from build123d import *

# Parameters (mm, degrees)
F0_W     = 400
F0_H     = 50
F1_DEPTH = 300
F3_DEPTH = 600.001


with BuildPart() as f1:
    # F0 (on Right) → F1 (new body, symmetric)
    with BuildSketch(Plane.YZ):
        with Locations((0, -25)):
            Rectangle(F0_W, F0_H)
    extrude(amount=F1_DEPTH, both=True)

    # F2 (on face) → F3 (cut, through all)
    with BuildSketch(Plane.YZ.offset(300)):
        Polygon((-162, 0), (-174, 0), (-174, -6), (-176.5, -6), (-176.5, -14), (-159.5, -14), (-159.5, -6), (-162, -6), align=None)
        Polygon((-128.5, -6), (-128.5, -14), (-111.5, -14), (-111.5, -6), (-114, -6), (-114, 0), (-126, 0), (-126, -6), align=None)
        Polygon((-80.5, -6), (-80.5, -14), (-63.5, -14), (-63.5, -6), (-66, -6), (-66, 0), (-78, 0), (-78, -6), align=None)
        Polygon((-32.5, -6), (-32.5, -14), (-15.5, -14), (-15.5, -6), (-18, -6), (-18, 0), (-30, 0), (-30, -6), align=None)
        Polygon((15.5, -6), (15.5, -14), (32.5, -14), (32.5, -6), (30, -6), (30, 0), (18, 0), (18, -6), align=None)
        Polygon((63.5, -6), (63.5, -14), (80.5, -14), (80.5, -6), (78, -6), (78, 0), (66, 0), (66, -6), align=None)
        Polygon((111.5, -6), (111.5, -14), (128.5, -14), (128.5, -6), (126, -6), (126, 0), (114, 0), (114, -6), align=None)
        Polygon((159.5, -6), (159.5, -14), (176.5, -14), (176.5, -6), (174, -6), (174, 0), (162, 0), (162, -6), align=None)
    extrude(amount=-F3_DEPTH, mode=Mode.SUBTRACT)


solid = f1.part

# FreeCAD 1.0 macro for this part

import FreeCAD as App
import Part
import Sketcher

V = App.Vector

doc = App.newDocument("Part")
params = doc.addObject("Spreadsheet::Sheet", "Params")
for row, (alias, value) in enumerate([
    ("sketch1_width", "400 mm"),
    ("sketch1_height", "50 mm"),
    ("pad1_length", "600 mm"),
    ("sketch2_width", "12 mm"),
    ("sketch2_width2", "17 mm"),
    ("sketch2_height", "6 mm"),
    ("sketch2_height2", "8 mm"),
], start=1):
    params.set(f"A{row}", alias)
    params.set(f"B{row}", "=" + value)
    params.setAlias(f"B{row}", alias)

body = doc.addObject("PartDesign::Body", "Body")

# Sketch on YZ plane
sketch1 = doc.addObject("Sketcher::SketchObject", "Sketch")
body.addObject(sketch1)
sketch1.AttachmentSupport = (doc.YZ_Plane, [""])
sketch1.MapMode = "FlatFace"
sketch1.addGeometry([
    Part.LineSegment(V(-200, 0, 0), V(-200, -50, 0)),
    Part.LineSegment(V(-200, -50, 0), V(200, -50, 0)),
    Part.LineSegment(V(200, -50, 0), V(200, 0, 0)),
    Part.LineSegment(V(200, 0, 0), V(-200, 0, 0)),
], False)
sketch1.addConstraint([
    Sketcher.Constraint("Coincident", 0, 2, 1, 1),
    Sketcher.Constraint("Coincident", 1, 2, 2, 1),
    Sketcher.Constraint("Coincident", 2, 2, 3, 1),
    Sketcher.Constraint("Coincident", 3, 2, 0, 1),
    Sketcher.Constraint("Vertical", 0),
    Sketcher.Constraint("Horizontal", 1),
    Sketcher.Constraint("Vertical", 2),
    Sketcher.Constraint("Horizontal", 3),
    Sketcher.Constraint("Symmetric", 2, 2, 3, 2, -1, 1),
    Sketcher.Constraint("DistanceX", 1, 1, 1, 2, 400.0),
    Sketcher.Constraint("DistanceY", 0, 2, 0, 1, 50.0),
])
sketch1.setExpression("Constraints[9]", "Params.sketch1_width")
sketch1.setExpression("Constraints[10]", "Params.sketch1_height")
pad1 = doc.addObject("PartDesign::Pad", "Pad")
body.addObject(pad1)
pad1.Profile = sketch1
pad1.setExpression("Length", "Params.pad1_length")
pad1.Midplane = True

# Sketch on YZ plane
sketch2 = doc.addObject("Sketcher::SketchObject", "Sketch001")
body.addObject(sketch2)
sketch2.AttachmentSupport = (doc.YZ_Plane, [""])
sketch2.MapMode = "FlatFace"
sketch2.AttachmentOffset = App.Placement(V(0, 0, 300), App.Rotation())
sketch2.addGeometry([
    Part.LineSegment(V(-162, 0, 0), V(-174, 0, 0)),  # 0
    Part.LineSegment(V(-174, 0, 0), V(-174, -6, 0)),  # 1
    Part.LineSegment(V(-174, -6, 0), V(-176.5, -6, 0)),  # 2
    Part.LineSegment(V(-176.5, -6, 0), V(-176.5, -14, 0)),  # 3
    Part.LineSegment(V(-176.5, -14, 0), V(-159.5, -14, 0)),  # 4
    Part.LineSegment(V(-159.5, -14, 0), V(-159.5, -6, 0)),  # 5
    Part.LineSegment(V(-159.5, -6, 0), V(-162, -6, 0)),  # 6
    Part.LineSegment(V(-162, -6, 0), V(-162, 0, 0)),  # 7
    Part.LineSegment(V(-128.5, -6, 0), V(-128.5, -14, 0)),  # 8
    Part.LineSegment(V(-128.5, -14, 0), V(-111.5, -14, 0)),  # 9
    Part.LineSegment(V(-111.5, -14, 0), V(-111.5, -6, 0)),  # 10
    Part.LineSegment(V(-111.5, -6, 0), V(-114, -6, 0)),  # 11
    Part.LineSegment(V(-114, -6, 0), V(-114, 0, 0)),  # 12
    Part.LineSegment(V(-114, 0, 0), V(-126, 0, 0)),  # 13
    Part.LineSegment(V(-126, 0, 0), V(-126, -6, 0)),  # 14
    Part.LineSegment(V(-126, -6, 0), V(-128.5, -6, 0)),  # 15
    Part.LineSegment(V(-80.5, -6, 0), V(-80.5, -14, 0)),  # 16
    Part.LineSegment(V(-80.5, -14, 0), V(-63.5, -14, 0)),  # 17
    Part.LineSegment(V(-63.5, -14, 0), V(-63.5, -6, 0)),  # 18
    Part.LineSegment(V(-63.5, -6, 0), V(-66, -6, 0)),  # 19
    Part.LineSegment(V(-66, -6, 0), V(-66, 0, 0)),  # 20
    Part.LineSegment(V(-66, 0, 0), V(-78, 0, 0)),  # 21
    Part.LineSegment(V(-78, 0, 0), V(-78, -6, 0)),  # 22
    Part.LineSegment(V(-78, -6, 0), V(-80.5, -6, 0)),  # 23
    Part.LineSegment(V(-32.5, -6, 0), V(-32.5, -14, 0)),  # 24
    Part.LineSegment(V(-32.5, -14, 0), V(-15.5, -14, 0)),  # 25
    Part.LineSegment(V(-15.5, -14, 0), V(-15.5, -6, 0)),  # 26
    Part.LineSegment(V(-15.5, -6, 0), V(-18, -6, 0)),  # 27
    Part.LineSegment(V(-18, -6, 0), V(-18, 0, 0)),  # 28
    Part.LineSegment(V(-18, 0, 0), V(-30, 0, 0)),  # 29
    Part.LineSegment(V(-30, 0, 0), V(-30, -6, 0)),  # 30
    Part.LineSegment(V(-30, -6, 0), V(-32.5, -6, 0)),  # 31
    Part.LineSegment(V(15.5, -6, 0), V(15.5, -14, 0)),  # 32
    Part.LineSegment(V(15.5, -14, 0), V(32.5, -14, 0)),  # 33
    Part.LineSegment(V(32.5, -14, 0), V(32.5, -6, 0)),  # 34
    Part.LineSegment(V(32.5, -6, 0), V(30, -6, 0)),  # 35
    Part.LineSegment(V(30, -6, 0), V(30, 0, 0)),  # 36
    Part.LineSegment(V(30, 0, 0), V(18, 0, 0)),  # 37
    Part.LineSegment(V(18, 0, 0), V(18, -6, 0)),  # 38
    Part.LineSegment(V(18, -6, 0), V(15.5, -6, 0)),  # 39
    Part.LineSegment(V(63.5, -6, 0), V(63.5, -14, 0)),  # 40
    Part.LineSegment(V(63.5, -14, 0), V(80.5, -14, 0)),  # 41
    Part.LineSegment(V(80.5, -14, 0), V(80.5, -6, 0)),  # 42
    Part.LineSegment(V(80.5, -6, 0), V(78, -6, 0)),  # 43
    Part.LineSegment(V(78, -6, 0), V(78, 0, 0)),  # 44
    Part.LineSegment(V(78, 0, 0), V(66, 0, 0)),  # 45
    Part.LineSegment(V(66, 0, 0), V(66, -6, 0)),  # 46
    Part.LineSegment(V(66, -6, 0), V(63.5, -6, 0)),  # 47
    Part.LineSegment(V(111.5, -6, 0), V(111.5, -14, 0)),  # 48
    Part.LineSegment(V(111.5, -14, 0), V(128.5, -14, 0)),  # 49
    Part.LineSegment(V(128.5, -14, 0), V(128.5, -6, 0)),  # 50
    Part.LineSegment(V(128.5, -6, 0), V(126, -6, 0)),  # 51
    Part.LineSegment(V(126, -6, 0), V(126, 0, 0)),  # 52
    Part.LineSegment(V(126, 0, 0), V(114, 0, 0)),  # 53
    Part.LineSegment(V(114, 0, 0), V(114, -6, 0)),  # 54
    Part.LineSegment(V(114, -6, 0), V(111.5, -6, 0)),  # 55
    Part.LineSegment(V(159.5, -6, 0), V(159.5, -14, 0)),  # 56
    Part.LineSegment(V(159.5, -14, 0), V(176.5, -14, 0)),  # 57
    Part.LineSegment(V(176.5, -14, 0), V(176.5, -6, 0)),  # 58
    Part.LineSegment(V(176.5, -6, 0), V(174, -6, 0)),  # 59
    Part.LineSegment(V(174, -6, 0), V(174, 0, 0)),  # 60
    Part.LineSegment(V(174, 0, 0), V(162, 0, 0)),  # 61
    Part.LineSegment(V(162, 0, 0), V(162, -6, 0)),  # 62
    Part.LineSegment(V(162, -6, 0), V(159.5, -6, 0)),  # 63
], False)
sketch2.addConstraint([
    Sketcher.Constraint("Coincident", 0, 2, 1, 1),
    Sketcher.Constraint("Coincident", 1, 2, 2, 1),
    Sketcher.Constraint("Coincident", 2, 2, 3, 1),
    Sketcher.Constraint("Coincident", 3, 2, 4, 1),
    Sketcher.Constraint("Coincident", 4, 2, 5, 1),
    Sketcher.Constraint("Coincident", 5, 2, 6, 1),
    Sketcher.Constraint("Coincident", 6, 2, 7, 1),
    Sketcher.Constraint("Coincident", 7, 2, 0, 1),
    Sketcher.Constraint("Coincident", 8, 2, 9, 1),
    Sketcher.Constraint("Coincident", 9, 2, 10, 1),
    Sketcher.Constraint("Coincident", 10, 2, 11, 1),
    Sketcher.Constraint("Coincident", 11, 2, 12, 1),
    Sketcher.Constraint("Coincident", 12, 2, 13, 1),
    Sketcher.Constraint("Coincident", 13, 2, 14, 1),
    Sketcher.Constraint("Coincident", 14, 2, 15, 1),
    Sketcher.Constraint("Coincident", 15, 2, 8, 1),
    Sketcher.Constraint("Coincident", 16, 2, 17, 1),
    Sketcher.Constraint("Coincident", 17, 2, 18, 1),
    Sketcher.Constraint("Coincident", 18, 2, 19, 1),
    Sketcher.Constraint("Coincident", 19, 2, 20, 1),
    Sketcher.Constraint("Coincident", 20, 2, 21, 1),
    Sketcher.Constraint("Coincident", 21, 2, 22, 1),
    Sketcher.Constraint("Coincident", 22, 2, 23, 1),
    Sketcher.Constraint("Coincident", 23, 2, 16, 1),
    Sketcher.Constraint("Coincident", 24, 2, 25, 1),
    Sketcher.Constraint("Coincident", 25, 2, 26, 1),
    Sketcher.Constraint("Coincident", 26, 2, 27, 1),
    Sketcher.Constraint("Coincident", 27, 2, 28, 1),
    Sketcher.Constraint("Coincident", 28, 2, 29, 1),
    Sketcher.Constraint("Coincident", 29, 2, 30, 1),
    Sketcher.Constraint("Coincident", 30, 2, 31, 1),
    Sketcher.Constraint("Coincident", 31, 2, 24, 1),
    Sketcher.Constraint("Coincident", 32, 2, 33, 1),
    Sketcher.Constraint("Coincident", 33, 2, 34, 1),
    Sketcher.Constraint("Coincident", 34, 2, 35, 1),
    Sketcher.Constraint("Coincident", 35, 2, 36, 1),
    Sketcher.Constraint("Coincident", 36, 2, 37, 1),
    Sketcher.Constraint("Coincident", 37, 2, 38, 1),
    Sketcher.Constraint("Coincident", 38, 2, 39, 1),
    Sketcher.Constraint("Coincident", 39, 2, 32, 1),
    Sketcher.Constraint("Coincident", 40, 2, 41, 1),
    Sketcher.Constraint("Coincident", 41, 2, 42, 1),
    Sketcher.Constraint("Coincident", 42, 2, 43, 1),
    Sketcher.Constraint("Coincident", 43, 2, 44, 1),
    Sketcher.Constraint("Coincident", 44, 2, 45, 1),
    Sketcher.Constraint("Coincident", 45, 2, 46, 1),
    Sketcher.Constraint("Coincident", 46, 2, 47, 1),
    Sketcher.Constraint("Coincident", 47, 2, 40, 1),
    Sketcher.Constraint("Coincident", 48, 2, 49, 1),
    Sketcher.Constraint("Coincident", 49, 2, 50, 1),
    Sketcher.Constraint("Coincident", 50, 2, 51, 1),
    Sketcher.Constraint("Coincident", 51, 2, 52, 1),
    Sketcher.Constraint("Coincident", 52, 2, 53, 1),
    Sketcher.Constraint("Coincident", 53, 2, 54, 1),
    Sketcher.Constraint("Coincident", 54, 2, 55, 1),
    Sketcher.Constraint("Coincident", 55, 2, 48, 1),
    Sketcher.Constraint("Coincident", 56, 2, 57, 1),
    Sketcher.Constraint("Coincident", 57, 2, 58, 1),
    Sketcher.Constraint("Coincident", 58, 2, 59, 1),
    Sketcher.Constraint("Coincident", 59, 2, 60, 1),
    Sketcher.Constraint("Coincident", 60, 2, 61, 1),
    Sketcher.Constraint("Coincident", 61, 2, 62, 1),
    Sketcher.Constraint("Coincident", 62, 2, 63, 1),
    Sketcher.Constraint("Coincident", 63, 2, 56, 1),
    Sketcher.Constraint("Horizontal", 0),
    Sketcher.Constraint("Vertical", 1),
    Sketcher.Constraint("Horizontal", 2),
    Sketcher.Constraint("Vertical", 3),
    Sketcher.Constraint("Horizontal", 4),
    Sketcher.Constraint("Vertical", 5),
    Sketcher.Constraint("Horizontal", 6),
    Sketcher.Constraint("Vertical", 7),
    Sketcher.Constraint("Vertical", 8),
    Sketcher.Constraint("Horizontal", 9),
    Sketcher.Constraint("Vertical", 10),
    Sketcher.Constraint("Horizontal", 11),
    Sketcher.Constraint("Vertical", 12),
    Sketcher.Constraint("Horizontal", 13),
    Sketcher.Constraint("Vertical", 14),
    Sketcher.Constraint("Horizontal", 15),
    Sketcher.Constraint("Vertical", 16),
    Sketcher.Constraint("Horizontal", 17),
    Sketcher.Constraint("Vertical", 18),
    Sketcher.Constraint("Horizontal", 19),
    Sketcher.Constraint("Vertical", 20),
    Sketcher.Constraint("Horizontal", 21),
    Sketcher.Constraint("Vertical", 22),
    Sketcher.Constraint("Horizontal", 23),
    Sketcher.Constraint("Vertical", 24),
    Sketcher.Constraint("Horizontal", 25),
    Sketcher.Constraint("Vertical", 26),
    Sketcher.Constraint("Horizontal", 27),
    Sketcher.Constraint("Vertical", 28),
    Sketcher.Constraint("Horizontal", 29),
    Sketcher.Constraint("Vertical", 30),
    Sketcher.Constraint("Horizontal", 31),
    Sketcher.Constraint("Vertical", 32),
    Sketcher.Constraint("Horizontal", 33),
    Sketcher.Constraint("Vertical", 34),
    Sketcher.Constraint("Horizontal", 35),
    Sketcher.Constraint("Vertical", 36),
    Sketcher.Constraint("Horizontal", 37),
    Sketcher.Constraint("Vertical", 38),
    Sketcher.Constraint("Horizontal", 39),
    Sketcher.Constraint("Vertical", 40),
    Sketcher.Constraint("Horizontal", 41),
    Sketcher.Constraint("Vertical", 42),
    Sketcher.Constraint("Horizontal", 43),
    Sketcher.Constraint("Vertical", 44),
    Sketcher.Constraint("Horizontal", 45),
    Sketcher.Constraint("Vertical", 46),
    Sketcher.Constraint("Horizontal", 47),
    Sketcher.Constraint("Vertical", 48),
    Sketcher.Constraint("Horizontal", 49),
    Sketcher.Constraint("Vertical", 50),
    Sketcher.Constraint("Horizontal", 51),
    Sketcher.Constraint("Vertical", 52),
    Sketcher.Constraint("Horizontal", 53),
    Sketcher.Constraint("Vertical", 54),
    Sketcher.Constraint("Horizontal", 55),
    Sketcher.Constraint("Vertical", 56),
    Sketcher.Constraint("Horizontal", 57),
    Sketcher.Constraint("Vertical", 58),
    Sketcher.Constraint("Horizontal", 59),
    Sketcher.Constraint("Vertical", 60),
    Sketcher.Constraint("Horizontal", 61),
    Sketcher.Constraint("Vertical", 62),
    Sketcher.Constraint("Horizontal", 63),
    Sketcher.Constraint("Symmetric", 29, 2, 36, 2, -1, 1),
    Sketcher.Constraint("Symmetric", 21, 2, 44, 2, -1, 1),
    Sketcher.Constraint("Symmetric", 13, 2, 52, 2, -1, 1),
    Sketcher.Constraint("Symmetric", 0, 2, 60, 2, -1, 1),
    Sketcher.Constraint("Symmetric", 25, 2, 32, 2, -2),
    Sketcher.Constraint("Symmetric", 31, 2, 34, 2, -2),
    Sketcher.Constraint("Symmetric", 28, 2, 37, 2, -2),
    Sketcher.Constraint("Symmetric", 17, 2, 40, 2, -2),
    Sketcher.Constraint("Symmetric", 23, 2, 42, 2, -2),
    Sketcher.Constraint("Symmetric", 20, 2, 45, 2, -2),
    Sketcher.Constraint("Symmetric", 9, 2, 48, 2, -2),
    Sketcher.Constraint("Symmetric", 15, 2, 50, 2, -2),
    Sketcher.Constraint("Symmetric", 12, 2, 53, 2, -2),
    Sketcher.Constraint("Symmetric", 4, 2, 56, 2, -2),
    Sketcher.Constraint("Symmetric", 2, 2, 58, 2, -2),
    Sketcher.Constraint("Symmetric", 7, 2, 61, 2, -2),
    Sketcher.Constraint("Horizontal", 2, 2, 5, 2),
    Sketcher.Constraint("Horizontal", 4, 2, 8, 2),
    Sketcher.Constraint("Horizontal", 6, 2, 10, 2),
    Sketcher.Constraint("Horizontal", 11, 2, 14, 2),
    Sketcher.Constraint("Horizontal", 9, 2, 16, 2),
    Sketcher.Constraint("Horizontal", 15, 2, 18, 2),
    Sketcher.Constraint("Horizontal", 19, 2, 22, 2),
    Sketcher.Constraint("Horizontal", 17, 2, 24, 2),
    Sketcher.Constraint("Horizontal", 23, 2, 26, 2),
    Sketcher.Constraint("Horizontal", 27, 2, 30, 2),
    Sketcher.Constraint("Horizontal", 35, 2, 38, 2),
    Sketcher.Constraint("Horizontal", 43, 2, 46, 2),
    Sketcher.Constraint("Horizontal", 51, 2, 54, 2),
    Sketcher.Constraint("Horizontal", 59, 2, 62, 2),
    Sketcher.Constraint("Equal", 2, 6),
    Sketcher.Constraint("Equal", 4, 9),
    Sketcher.Constraint("Equal", 6, 11),
    Sketcher.Constraint("Equal", 0, 13),
    Sketcher.Constraint("Equal", 9, 17),
    Sketcher.Constraint("Equal", 15, 19),
    Sketcher.Constraint("Equal", 13, 21),
    Sketcher.Constraint("Equal", 17, 25),
    Sketcher.Constraint("Equal", 23, 27),
    Sketcher.Constraint("Equal", 21, 29),
    Sketcher.Constraint("DistanceX", 0, 2, 0, 1, 12.0),
    Sketcher.Constraint("DistanceX", 4, 1, 4, 2, 17.0),
    Sketcher.Constraint("DistanceY", 1, 2, 1, 1, 6.0),
    Sketcher.Constraint("DistanceY", 3, 2, 3, 1, 8.0),
    Sketcher.Constraint("DistanceX", 0, 2, -1, 1, 174.0),
    Sketcher.Constraint("DistanceX", 11, 2, -1, 1, 114.0),
    Sketcher.Constraint("DistanceX", 19, 2, -1, 1, 66.0),
    Sketcher.Constraint("DistanceX", 27, 2, -1, 1, 18.0),
])
sketch2.setExpression("Constraints[168]", "Params.sketch2_width")
sketch2.setExpression("Constraints[169]", "Params.sketch2_width2")
sketch2.setExpression("Constraints[170]", "Params.sketch2_height")
sketch2.setExpression("Constraints[171]", "Params.sketch2_height2")
pocket1 = doc.addObject("PartDesign::Pocket", "Pocket")
body.addObject(pocket1)
pocket1.Profile = sketch2
pocket1.Type = "ThroughAll"

doc.recompute()
